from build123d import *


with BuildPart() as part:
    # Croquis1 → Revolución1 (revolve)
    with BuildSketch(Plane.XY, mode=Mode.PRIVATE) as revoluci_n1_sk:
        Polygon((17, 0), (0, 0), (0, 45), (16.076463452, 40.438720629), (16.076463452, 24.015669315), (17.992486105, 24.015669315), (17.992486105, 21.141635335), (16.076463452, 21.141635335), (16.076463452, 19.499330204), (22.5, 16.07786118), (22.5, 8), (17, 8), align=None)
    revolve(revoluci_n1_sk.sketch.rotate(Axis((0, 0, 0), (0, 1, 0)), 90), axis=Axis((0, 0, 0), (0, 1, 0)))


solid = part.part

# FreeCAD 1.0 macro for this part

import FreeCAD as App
import Part
import Sketcher
Q = App.Units.Quantity


def add_polygon(sketch, points):
    """Adds a closed chain of lines whose ends are joined by coincident constraints."""
    first, n = sketch.GeometryCount, len(points)
    for a, b in zip(points, points[1:] + points[:1]):
        sketch.addGeometry(Part.LineSegment(App.Vector(*a, 0), App.Vector(*b, 0)), False)
    for i in range(n):
        sketch.addConstraint(Sketcher.Constraint("Coincident", first + i, 2, first + (i + 1) % n, 1))

doc = App.newDocument("Part")
body = doc.addObject("PartDesign::Body", "Body")

# Sketch on XY plane
sketch1 = doc.addObject("Sketcher::SketchObject", "Sketch")
body.addObject(sketch1)
sketch1.AttachmentSupport = (doc.XY_Plane, [""])
sketch1.MapMode = "FlatFace"
add_polygon(sketch1, [(0, 0), (17, 0), (17, 8), (22.5, 8), (22.5, 16.077861), (16.076463, 19.49933), (16.076463, 21.141635), (17.992486, 21.141635), (17.992486, 24.015669), (16.076463, 24.015669), (16.076463, 40.438721), (0, 45)])  # lines 0-11
sketch1.addConstraint([
    Sketcher.Constraint("Horizontal", 0),
    Sketcher.Constraint("Vertical", 1),
    Sketcher.Constraint("Horizontal", 2),
    Sketcher.Constraint("Vertical", 3),
    Sketcher.Constraint("Vertical", 5),
    Sketcher.Constraint("Horizontal", 6),
    Sketcher.Constraint("Vertical", 7),
    Sketcher.Constraint("Horizontal", 8),
    Sketcher.Constraint("Vertical", 9),
    Sketcher.Constraint("Vertical", 11),
    Sketcher.Constraint("Coincident", 11, 2, -1, 1),
    Sketcher.Constraint("Vertical", 5, 2, 8, 2),
    Sketcher.Constraint("DistanceX", 0, 1, 0, 2, Q("17 mm")),
    Sketcher.Constraint("DistanceY", 1, 1, 1, 2, Q("8 mm")),
    Sketcher.Constraint("DistanceY", 11, 2, 11, 1, Q("45 mm")),
    Sketcher.Constraint("DistanceX", 2, 1, 2, 2, Q("5.5 mm")),
    Sketcher.Constraint("DistanceY", 3, 1, 3, 2, Q("8.077861 mm")),
    Sketcher.Constraint("DistanceY", 9, 1, 9, 2, Q("16.423051 mm")),
    Sketcher.Constraint("Distance", 4, Q("7.27793 mm")),
    Sketcher.Constraint("DistanceX", 6, 1, 6, 2, Q("1.916023 mm")),
    Sketcher.Constraint("DistanceY", 5, 1, 5, 2, Q("1.642305 mm")),
    Sketcher.Constraint("DistanceY", 7, 1, 7, 2, Q("2.874034 mm")),
    Sketcher.Constraint("DistanceY", -1, 1, 4, 2, Q("19.49933 mm")),
])
revolution = doc.addObject("PartDesign::Revolution", "Revolution")
body.addObject(revolution)
revolution.Profile = sketch1
revolution.ReferenceAxis = (sketch1, ["V_Axis"])
revolution.Angle = 360

doc.recompute()
